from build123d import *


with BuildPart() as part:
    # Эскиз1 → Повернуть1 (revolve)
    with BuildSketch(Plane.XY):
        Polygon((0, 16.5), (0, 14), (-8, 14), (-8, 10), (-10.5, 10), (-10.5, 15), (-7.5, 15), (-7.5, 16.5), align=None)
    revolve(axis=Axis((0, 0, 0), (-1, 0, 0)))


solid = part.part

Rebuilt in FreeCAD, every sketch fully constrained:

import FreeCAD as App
import Part
import Sketcher

doc = App.newDocument("Part")
body = doc.addObject("PartDesign::Body", "Body")

# Sketch on XY plane
sketch1 = body.newObject("Sketcher::SketchObject", "Sketch")
sketch1.AttachmentSupport = (doc.getObject("XY_Plane"), [""])
sketch1.MapMode = "FlatFace"
sketch1.addGeometry(Part.LineSegment(App.Vector(0, 14, 0), App.Vector(0, 16.5, 0)), False)
sketch1.addGeometry(Part.LineSegment(App.Vector(0, 16.5, 0), App.Vector(-7.5, 16.5, 0)), False)
sketch1.addGeometry(Part.LineSegment(App.Vector(-7.5, 16.5, 0), App.Vector(-7.5, 15, 0)), False)
sketch1.addGeometry(Part.LineSegment(App.Vector(-7.5, 15, 0), App.Vector(-10.5, 15, 0)), False)
sketch1.addGeometry(Part.LineSegment(App.Vector(-10.5, 15, 0), App.Vector(-10.5, 10, 0)), False)
sketch1.addGeometry(Part.LineSegment(App.Vector(-10.5, 10, 0), App.Vector(-8, 10, 0)), False)
sketch1.addGeometry(Part.LineSegment(App.Vector(-8, 10, 0), App.Vector(-8, 14, 0)), False)
sketch1.addGeometry(Part.LineSegment(App.Vector(-8, 14, 0), App.Vector(0, 14, 0)), False)
sketch1.addConstraint(Sketcher.Constraint("Coincident", 0, 2, 1, 1))
sketch1.addConstraint(Sketcher.Constraint("Coincident", 1, 2, 2, 1))
sketch1.addConstraint(Sketcher.Constraint("Coincident", 2, 2, 3, 1))
sketch1.addConstraint(Sketcher.Constraint("Coincident", 3, 2, 4, 1))
sketch1.addConstraint(Sketcher.Constraint("Coincident", 4, 2, 5, 1))
sketch1.addConstraint(Sketcher.Constraint("Coincident", 5, 2, 6, 1))
sketch1.addConstraint(Sketcher.Constraint("Coincident", 6, 2, 7, 1))
sketch1.addConstraint(Sketcher.Constraint("Coincident", 7, 2, 0, 1))
sketch1.addConstraint(Sketcher.Constraint("Vertical", 0))
sketch1.addConstraint(Sketcher.Constraint("Horizontal", 1))
sketch1.addConstraint(Sketcher.Constraint("Vertical", 2))
sketch1.addConstraint(Sketcher.Constraint("Horizontal", 3))
sketch1.addConstraint(Sketcher.Constraint("Vertical", 4))
sketch1.addConstraint(Sketcher.Constraint("Horizontal", 5))
sketch1.addConstraint(Sketcher.Constraint("Vertical", 6))
sketch1.addConstraint(Sketcher.Constraint("Horizontal", 7))
sketch1.addConstraint(Sketcher.Constraint("PointOnObject", 0, 2, -2))
sketch1.addConstraint(Sketcher.Constraint("Equal", 5, 0))
sketch1.addConstraint(Sketcher.Constraint("DistanceX", 3, 2, 3, 1, 3.0))
sketch1.addConstraint(Sketcher.Constraint("DistanceX", 7, 1, 7, 2, 8.0))
sketch1.addConstraint(Sketcher.Constraint("DistanceY", 4, 2, 4, 1, 5.0))
sketch1.addConstraint(Sketcher.Constraint("DistanceY", 6, 1, 6, 2, 4.0))
sketch1.addConstraint(Sketcher.Constraint("DistanceX", 1, 2, 1, 1, 7.5))
sketch1.addConstraint(Sketcher.Constraint("DistanceY", -1, 1, 2, 2, 15.0))
revolution = body.newObject("PartDesign::Revolution", "Revolution")
revolution.Profile = sketch1
revolution.ReferenceAxis = (sketch1, ["H_Axis"])
revolution.Angle = 360

doc.recompute()
